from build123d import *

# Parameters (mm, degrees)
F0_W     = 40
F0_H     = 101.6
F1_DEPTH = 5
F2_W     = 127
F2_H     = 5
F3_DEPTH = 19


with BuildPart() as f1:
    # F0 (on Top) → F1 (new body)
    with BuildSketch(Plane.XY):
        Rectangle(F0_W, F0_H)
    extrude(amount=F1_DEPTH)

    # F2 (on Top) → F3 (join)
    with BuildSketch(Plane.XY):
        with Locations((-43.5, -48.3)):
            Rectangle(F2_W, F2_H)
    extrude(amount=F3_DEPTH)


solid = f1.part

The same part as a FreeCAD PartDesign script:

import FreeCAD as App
import Part
import Sketcher
from FreeCAD import Vector

doc = App.newDocument("Part")
params = doc.addObject("Spreadsheet::Sheet", "Params")
for row, (alias, value) in enumerate([
    ("sketch1_width", "40 mm"),
    ("sketch1_height", "101.6 mm"),
    ("pad1_length", "5 mm"),
    ("sketch2_width", "127 mm"),
    ("sketch2_height", "5 mm"),
    ("pad2_length", "19 mm"),
], start=1):
    params.set(f"A{row}", alias)
    params.set(f"B{row}", "=" + value)
    params.setAlias(f"B{row}", alias)

body = doc.addObject("PartDesign::Body", "Body")

sketch1 = body.newObject("Sketcher::SketchObject", "Sketch")
sketch1.AttachmentSupport = (doc.getObject("XY_Plane"), [""])
sketch1.MapMode = "FlatFace"
sketch1.addGeometry([
    Part.LineSegment(Vector(-20, 50.8, 0), Vector(-20, -50.8, 0)),
    Part.LineSegment(Vector(-20, -50.8, 0), Vector(20, -50.8, 0)),
    Part.LineSegment(Vector(20, -50.8, 0), Vector(20, 50.8, 0)),
    Part.LineSegment(Vector(20, 50.8, 0), Vector(-20, 50.8, 0)),
], False)
sketch1.addConstraint([
    Sketcher.Constraint("Coincident", 0, 2, 1, 1),
    Sketcher.Constraint("Coincident", 1, 2, 2, 1),
    Sketcher.Constraint("Coincident", 2, 2, 3, 1),
    Sketcher.Constraint("Coincident", 3, 2, 0, 1),
    Sketcher.Constraint("Vertical", 0),
    Sketcher.Constraint("Horizontal", 1),
    Sketcher.Constraint("Vertical", 2),
    Sketcher.Constraint("Horizontal", 3),
    Sketcher.Constraint("Symmetric", 0, 2, 2, 2, -1, 1),
    Sketcher.Constraint("DistanceX", 1, 1, 1, 2, 40.0),
    Sketcher.Constraint("DistanceY", 0, 2, 0, 1, 101.6),
])
sketch1.setExpression("Constraints[9]", "Params.sketch1_width")
sketch1.setExpression("Constraints[10]", "Params.sketch1_height")
pad1 = body.newObject("PartDesign::Pad", "Pad")
pad1.Profile = sketch1
pad1.setExpression("Length", "Params.pad1_length")

sketch2 = body.newObject("Sketcher::SketchObject", "Sketch001")
sketch2.AttachmentSupport = (doc.getObject("XY_Plane"), [""])
sketch2.MapMode = "FlatFace"
sketch2.addGeometry([
    Part.LineSegment(Vector(-107, -45.8, 0), Vector(-107, -50.8, 0)),
    Part.LineSegment(Vector(-107, -50.8, 0), Vector(20, -50.8, 0)),
    Part.LineSegment(Vector(20, -50.8, 0), Vector(20, -45.8, 0)),
    Part.LineSegment(Vector(20, -45.8, 0), Vector(-107, -45.8, 0)),
], False)
sketch2.addConstraint([
    Sketcher.Constraint("Coincident", 0, 2, 1, 1),
    Sketcher.Constraint("Coincident", 1, 2, 2, 1),
    Sketcher.Constraint("Coincident", 2, 2, 3, 1),
    Sketcher.Constraint("Coincident", 3, 2, 0, 1),
    Sketcher.Constraint("Vertical", 0),
    Sketcher.Constraint("Horizontal", 1),
    Sketcher.Constraint("Vertical", 2),
    Sketcher.Constraint("Horizontal", 3),
    Sketcher.Constraint("DistanceX", 1, 1, 1, 2, 127.0),
    Sketcher.Constraint("DistanceY", 0, 2, 0, 1, 5.0),
    Sketcher.Constraint("DistanceX", 0, 2, -1, 1, 107.0),
    Sketcher.Constraint("DistanceY", 0, 2, -1, 1, 50.8),
])
sketch2.setExpression("Constraints[8]", "Params.sketch2_width")
sketch2.setExpression("Constraints[9]", "Params.sketch2_height")
pad2 = body.newObject("PartDesign::Pad", "Pad001")
pad2.Profile = sketch2
pad2.setExpression("Length", "Params.pad2_length")

doc.recompute()
